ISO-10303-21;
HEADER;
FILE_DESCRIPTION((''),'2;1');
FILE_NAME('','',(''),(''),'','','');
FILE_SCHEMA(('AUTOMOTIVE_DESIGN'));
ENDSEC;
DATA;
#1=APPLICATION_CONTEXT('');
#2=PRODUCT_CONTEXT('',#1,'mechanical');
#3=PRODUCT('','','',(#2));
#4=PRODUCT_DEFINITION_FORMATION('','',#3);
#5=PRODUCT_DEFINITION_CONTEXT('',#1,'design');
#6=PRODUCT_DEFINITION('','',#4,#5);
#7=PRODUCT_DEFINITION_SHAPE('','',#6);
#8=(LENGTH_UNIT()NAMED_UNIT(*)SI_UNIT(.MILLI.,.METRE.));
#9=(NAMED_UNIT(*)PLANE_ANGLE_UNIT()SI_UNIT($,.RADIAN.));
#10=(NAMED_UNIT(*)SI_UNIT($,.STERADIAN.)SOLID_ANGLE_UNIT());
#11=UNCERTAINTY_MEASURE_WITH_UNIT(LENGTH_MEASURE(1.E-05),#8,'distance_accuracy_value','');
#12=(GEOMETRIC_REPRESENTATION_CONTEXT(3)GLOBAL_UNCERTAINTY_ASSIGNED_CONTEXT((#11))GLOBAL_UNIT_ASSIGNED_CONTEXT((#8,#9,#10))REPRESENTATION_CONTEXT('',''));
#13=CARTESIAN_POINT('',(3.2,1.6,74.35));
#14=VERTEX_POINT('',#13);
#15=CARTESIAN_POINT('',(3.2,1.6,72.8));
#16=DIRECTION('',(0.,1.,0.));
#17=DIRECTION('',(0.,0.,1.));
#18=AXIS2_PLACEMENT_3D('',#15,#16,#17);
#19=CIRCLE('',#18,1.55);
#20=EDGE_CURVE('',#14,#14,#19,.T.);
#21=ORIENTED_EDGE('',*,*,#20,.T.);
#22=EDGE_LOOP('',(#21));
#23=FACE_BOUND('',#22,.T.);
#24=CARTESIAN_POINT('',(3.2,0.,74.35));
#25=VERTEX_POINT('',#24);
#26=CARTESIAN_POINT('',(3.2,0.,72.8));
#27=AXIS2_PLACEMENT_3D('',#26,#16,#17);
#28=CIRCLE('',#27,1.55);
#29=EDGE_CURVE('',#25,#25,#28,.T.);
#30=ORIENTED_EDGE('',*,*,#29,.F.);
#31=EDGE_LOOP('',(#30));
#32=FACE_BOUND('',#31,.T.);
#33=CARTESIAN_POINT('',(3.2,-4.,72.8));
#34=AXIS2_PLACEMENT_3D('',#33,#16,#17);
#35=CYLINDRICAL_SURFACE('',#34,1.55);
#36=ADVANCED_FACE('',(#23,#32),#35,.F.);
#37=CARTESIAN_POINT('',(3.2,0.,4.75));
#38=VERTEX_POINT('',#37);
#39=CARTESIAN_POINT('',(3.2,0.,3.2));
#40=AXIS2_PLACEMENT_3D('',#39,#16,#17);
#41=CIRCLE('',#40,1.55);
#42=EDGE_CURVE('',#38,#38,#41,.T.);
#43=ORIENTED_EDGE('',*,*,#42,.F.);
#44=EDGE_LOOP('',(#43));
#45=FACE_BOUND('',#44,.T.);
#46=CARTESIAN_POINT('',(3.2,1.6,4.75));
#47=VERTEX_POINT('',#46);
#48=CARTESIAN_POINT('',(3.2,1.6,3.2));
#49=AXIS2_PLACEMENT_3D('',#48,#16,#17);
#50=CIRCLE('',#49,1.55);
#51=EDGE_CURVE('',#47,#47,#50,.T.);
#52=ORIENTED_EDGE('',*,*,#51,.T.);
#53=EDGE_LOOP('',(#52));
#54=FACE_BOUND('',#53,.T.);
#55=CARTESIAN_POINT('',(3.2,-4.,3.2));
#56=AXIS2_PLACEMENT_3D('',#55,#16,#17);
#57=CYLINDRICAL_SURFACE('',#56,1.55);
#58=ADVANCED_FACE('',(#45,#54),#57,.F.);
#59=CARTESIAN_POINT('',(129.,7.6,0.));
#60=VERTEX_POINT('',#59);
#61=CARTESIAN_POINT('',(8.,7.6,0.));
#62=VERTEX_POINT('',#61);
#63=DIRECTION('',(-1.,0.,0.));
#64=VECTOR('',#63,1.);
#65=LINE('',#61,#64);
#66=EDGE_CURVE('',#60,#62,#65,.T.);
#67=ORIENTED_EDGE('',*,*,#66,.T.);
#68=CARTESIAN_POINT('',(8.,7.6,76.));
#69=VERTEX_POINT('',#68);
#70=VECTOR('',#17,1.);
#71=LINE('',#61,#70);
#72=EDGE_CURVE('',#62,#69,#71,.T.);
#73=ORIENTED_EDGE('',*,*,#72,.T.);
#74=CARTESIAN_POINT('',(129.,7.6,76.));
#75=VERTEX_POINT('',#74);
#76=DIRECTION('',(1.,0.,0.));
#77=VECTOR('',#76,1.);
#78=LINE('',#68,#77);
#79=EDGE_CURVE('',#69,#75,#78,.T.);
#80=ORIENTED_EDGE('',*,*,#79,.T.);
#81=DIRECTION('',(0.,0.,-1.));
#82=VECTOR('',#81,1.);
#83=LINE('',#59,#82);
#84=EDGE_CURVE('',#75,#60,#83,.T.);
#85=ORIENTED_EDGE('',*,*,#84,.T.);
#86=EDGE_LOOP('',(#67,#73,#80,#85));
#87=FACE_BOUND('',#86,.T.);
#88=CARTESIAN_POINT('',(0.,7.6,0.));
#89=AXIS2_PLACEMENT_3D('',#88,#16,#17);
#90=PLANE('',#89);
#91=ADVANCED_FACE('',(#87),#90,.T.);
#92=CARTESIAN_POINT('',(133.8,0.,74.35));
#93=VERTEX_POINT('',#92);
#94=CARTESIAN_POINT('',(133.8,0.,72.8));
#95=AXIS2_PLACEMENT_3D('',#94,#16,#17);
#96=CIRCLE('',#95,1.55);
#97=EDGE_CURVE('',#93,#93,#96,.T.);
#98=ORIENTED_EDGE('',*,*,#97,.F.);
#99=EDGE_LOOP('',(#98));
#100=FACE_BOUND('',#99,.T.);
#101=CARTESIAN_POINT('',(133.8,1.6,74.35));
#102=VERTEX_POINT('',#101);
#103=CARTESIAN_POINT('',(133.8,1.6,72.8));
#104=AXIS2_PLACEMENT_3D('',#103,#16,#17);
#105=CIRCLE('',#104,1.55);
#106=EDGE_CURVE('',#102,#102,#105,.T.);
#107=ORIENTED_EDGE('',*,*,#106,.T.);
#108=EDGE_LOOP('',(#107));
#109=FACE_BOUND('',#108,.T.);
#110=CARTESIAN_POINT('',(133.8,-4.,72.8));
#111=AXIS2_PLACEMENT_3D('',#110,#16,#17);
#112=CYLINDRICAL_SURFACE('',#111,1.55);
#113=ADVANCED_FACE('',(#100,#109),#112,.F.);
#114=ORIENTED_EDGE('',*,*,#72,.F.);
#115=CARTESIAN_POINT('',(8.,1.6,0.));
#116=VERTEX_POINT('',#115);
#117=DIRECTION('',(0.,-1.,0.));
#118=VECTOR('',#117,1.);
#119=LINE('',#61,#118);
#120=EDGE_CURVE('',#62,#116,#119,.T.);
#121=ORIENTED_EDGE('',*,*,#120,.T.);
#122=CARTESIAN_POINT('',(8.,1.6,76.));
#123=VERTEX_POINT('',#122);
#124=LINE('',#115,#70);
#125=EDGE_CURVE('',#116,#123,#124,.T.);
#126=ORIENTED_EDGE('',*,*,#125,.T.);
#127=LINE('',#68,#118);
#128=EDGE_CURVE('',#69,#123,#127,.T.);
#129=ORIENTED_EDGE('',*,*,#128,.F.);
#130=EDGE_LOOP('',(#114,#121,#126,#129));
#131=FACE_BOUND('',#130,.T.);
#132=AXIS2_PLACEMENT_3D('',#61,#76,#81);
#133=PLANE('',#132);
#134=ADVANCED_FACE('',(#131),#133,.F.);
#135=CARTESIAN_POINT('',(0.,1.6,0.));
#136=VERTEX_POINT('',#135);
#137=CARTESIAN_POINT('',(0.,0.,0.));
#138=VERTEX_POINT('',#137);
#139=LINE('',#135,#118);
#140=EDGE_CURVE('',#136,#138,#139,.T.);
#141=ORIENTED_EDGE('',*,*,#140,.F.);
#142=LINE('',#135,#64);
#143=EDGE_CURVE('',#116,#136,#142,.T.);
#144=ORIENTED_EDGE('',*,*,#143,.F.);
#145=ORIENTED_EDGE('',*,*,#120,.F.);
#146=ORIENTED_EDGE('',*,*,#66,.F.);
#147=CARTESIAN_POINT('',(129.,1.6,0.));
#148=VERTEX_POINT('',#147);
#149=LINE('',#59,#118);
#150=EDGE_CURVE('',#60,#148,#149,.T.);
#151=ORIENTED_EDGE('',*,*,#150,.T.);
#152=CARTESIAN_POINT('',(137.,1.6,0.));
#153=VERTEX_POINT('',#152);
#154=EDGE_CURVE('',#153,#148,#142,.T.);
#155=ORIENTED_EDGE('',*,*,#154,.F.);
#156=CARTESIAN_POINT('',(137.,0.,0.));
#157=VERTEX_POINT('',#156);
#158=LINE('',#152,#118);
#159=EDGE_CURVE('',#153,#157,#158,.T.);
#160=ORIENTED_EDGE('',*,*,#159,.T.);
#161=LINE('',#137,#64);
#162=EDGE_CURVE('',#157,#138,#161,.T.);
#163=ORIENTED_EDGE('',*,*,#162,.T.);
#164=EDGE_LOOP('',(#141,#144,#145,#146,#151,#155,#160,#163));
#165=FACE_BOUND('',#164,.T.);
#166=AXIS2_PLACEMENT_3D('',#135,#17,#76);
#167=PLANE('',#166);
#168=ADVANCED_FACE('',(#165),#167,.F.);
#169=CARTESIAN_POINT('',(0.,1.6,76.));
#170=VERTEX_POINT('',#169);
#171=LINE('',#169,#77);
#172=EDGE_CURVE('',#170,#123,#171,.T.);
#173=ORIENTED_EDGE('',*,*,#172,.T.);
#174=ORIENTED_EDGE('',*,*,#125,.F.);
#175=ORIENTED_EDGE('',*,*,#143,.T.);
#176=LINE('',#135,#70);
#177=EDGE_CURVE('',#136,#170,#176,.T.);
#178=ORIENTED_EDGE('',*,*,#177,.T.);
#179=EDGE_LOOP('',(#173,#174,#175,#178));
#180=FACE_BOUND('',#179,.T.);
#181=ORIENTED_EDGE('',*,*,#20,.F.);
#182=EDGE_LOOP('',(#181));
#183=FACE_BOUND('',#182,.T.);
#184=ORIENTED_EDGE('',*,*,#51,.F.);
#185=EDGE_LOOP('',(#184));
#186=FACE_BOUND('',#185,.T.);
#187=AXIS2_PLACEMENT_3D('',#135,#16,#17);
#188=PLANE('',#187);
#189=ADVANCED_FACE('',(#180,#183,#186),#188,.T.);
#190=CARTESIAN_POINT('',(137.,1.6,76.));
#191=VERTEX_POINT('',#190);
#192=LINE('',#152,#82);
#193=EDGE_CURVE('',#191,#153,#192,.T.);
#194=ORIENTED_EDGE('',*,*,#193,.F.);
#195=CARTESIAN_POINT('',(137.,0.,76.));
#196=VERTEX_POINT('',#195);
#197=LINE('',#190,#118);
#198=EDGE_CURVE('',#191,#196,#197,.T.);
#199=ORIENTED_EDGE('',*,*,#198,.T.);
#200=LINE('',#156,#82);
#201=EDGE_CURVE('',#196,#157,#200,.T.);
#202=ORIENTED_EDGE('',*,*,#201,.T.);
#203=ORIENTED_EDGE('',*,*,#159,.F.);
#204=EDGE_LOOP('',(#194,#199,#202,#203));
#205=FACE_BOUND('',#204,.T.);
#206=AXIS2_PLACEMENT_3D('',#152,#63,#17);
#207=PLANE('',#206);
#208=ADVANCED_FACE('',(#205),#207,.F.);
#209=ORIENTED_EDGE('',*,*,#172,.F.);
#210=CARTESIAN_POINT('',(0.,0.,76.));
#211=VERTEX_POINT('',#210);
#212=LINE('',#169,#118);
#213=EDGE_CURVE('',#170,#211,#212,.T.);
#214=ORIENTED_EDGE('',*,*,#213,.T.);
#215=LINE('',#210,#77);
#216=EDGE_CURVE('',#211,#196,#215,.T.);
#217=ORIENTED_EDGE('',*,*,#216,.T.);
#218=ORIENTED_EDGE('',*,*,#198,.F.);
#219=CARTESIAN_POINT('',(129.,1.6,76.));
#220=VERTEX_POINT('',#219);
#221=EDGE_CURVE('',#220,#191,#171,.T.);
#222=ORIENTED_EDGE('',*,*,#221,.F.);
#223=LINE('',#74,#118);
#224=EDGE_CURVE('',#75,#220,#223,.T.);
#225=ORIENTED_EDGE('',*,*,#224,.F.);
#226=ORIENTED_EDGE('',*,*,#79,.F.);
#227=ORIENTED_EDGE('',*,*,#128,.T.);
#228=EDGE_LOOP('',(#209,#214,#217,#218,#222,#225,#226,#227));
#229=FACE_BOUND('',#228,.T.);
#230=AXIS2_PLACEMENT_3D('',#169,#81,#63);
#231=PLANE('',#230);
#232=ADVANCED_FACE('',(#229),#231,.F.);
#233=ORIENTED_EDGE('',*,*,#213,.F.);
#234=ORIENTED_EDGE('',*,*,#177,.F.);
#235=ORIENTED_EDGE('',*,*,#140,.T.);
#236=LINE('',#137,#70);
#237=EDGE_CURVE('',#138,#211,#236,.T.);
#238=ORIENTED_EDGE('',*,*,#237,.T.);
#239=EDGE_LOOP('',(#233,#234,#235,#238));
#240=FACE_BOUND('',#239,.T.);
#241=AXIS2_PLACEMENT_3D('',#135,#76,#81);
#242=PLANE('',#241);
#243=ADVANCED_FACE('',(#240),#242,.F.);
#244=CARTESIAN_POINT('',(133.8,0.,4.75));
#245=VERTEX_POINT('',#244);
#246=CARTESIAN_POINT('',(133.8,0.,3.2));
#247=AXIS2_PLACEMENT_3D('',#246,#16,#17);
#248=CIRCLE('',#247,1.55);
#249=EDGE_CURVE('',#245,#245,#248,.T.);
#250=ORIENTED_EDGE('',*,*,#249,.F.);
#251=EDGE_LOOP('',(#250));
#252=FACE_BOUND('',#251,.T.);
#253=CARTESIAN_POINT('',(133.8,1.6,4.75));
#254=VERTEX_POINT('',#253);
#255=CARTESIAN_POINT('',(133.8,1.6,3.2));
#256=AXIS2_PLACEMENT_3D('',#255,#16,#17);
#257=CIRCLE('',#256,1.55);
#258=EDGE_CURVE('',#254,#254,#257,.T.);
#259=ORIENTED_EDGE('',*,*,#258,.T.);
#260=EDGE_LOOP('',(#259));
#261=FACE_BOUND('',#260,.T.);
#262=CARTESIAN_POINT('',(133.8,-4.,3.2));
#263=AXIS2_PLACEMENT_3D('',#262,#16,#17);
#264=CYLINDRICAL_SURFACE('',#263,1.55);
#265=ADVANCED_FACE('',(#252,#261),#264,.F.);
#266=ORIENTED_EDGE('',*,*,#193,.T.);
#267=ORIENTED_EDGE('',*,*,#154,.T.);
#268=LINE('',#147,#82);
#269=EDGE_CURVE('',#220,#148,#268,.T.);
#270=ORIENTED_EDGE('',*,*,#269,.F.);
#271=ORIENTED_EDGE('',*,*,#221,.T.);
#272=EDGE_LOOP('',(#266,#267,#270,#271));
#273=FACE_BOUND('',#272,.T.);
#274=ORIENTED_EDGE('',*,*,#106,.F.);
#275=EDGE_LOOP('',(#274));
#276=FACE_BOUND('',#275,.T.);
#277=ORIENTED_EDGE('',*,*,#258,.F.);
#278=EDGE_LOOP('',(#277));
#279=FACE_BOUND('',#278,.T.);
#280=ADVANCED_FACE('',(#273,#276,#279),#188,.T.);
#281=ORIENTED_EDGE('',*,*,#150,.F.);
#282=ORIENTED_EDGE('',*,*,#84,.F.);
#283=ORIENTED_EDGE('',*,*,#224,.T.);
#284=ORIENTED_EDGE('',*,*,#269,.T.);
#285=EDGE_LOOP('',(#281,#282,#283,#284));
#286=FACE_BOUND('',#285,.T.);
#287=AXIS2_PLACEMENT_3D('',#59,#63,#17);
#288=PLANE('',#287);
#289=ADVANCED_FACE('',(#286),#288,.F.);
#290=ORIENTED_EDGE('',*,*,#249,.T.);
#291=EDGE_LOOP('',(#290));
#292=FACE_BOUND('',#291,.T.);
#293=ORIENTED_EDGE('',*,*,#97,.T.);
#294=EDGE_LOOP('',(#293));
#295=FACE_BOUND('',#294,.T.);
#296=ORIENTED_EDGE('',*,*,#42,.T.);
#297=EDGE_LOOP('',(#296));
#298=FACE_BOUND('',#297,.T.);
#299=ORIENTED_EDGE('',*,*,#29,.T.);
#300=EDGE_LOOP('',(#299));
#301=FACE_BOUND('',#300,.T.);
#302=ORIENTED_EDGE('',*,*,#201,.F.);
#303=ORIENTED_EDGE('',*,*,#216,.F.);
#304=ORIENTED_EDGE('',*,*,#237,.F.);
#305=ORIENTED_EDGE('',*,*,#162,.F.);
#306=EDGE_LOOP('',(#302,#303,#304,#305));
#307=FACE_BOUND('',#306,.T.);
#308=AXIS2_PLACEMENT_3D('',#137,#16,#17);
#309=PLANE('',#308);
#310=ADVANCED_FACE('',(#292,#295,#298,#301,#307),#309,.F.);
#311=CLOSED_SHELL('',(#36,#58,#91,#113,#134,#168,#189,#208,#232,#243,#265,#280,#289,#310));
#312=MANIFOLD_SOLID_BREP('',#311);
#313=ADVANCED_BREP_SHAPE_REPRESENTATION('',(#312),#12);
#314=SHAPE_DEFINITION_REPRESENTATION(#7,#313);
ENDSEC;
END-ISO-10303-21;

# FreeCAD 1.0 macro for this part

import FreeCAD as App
import Part
import Sketcher
Q = App.Units.Quantity


def add_polygon(sketch, points):
    """Adds a closed chain of lines whose ends are joined by coincident constraints."""
    first, n = sketch.GeometryCount, len(points)
    for a, b in zip(points, points[1:] + points[:1]):
        sketch.addGeometry(Part.LineSegment(App.Vector(*a, 0), App.Vector(*b, 0)), False)
    for i in range(n):
        sketch.addConstraint(Sketcher.Constraint("Coincident", first + i, 2, first + (i + 1) % n, 1))

doc = App.newDocument("Part")
body = doc.addObject("PartDesign::Body", "Body")

# Sketch on XZ plane
sketch1 = doc.addObject("Sketcher::SketchObject", "Sketch")
body.addObject(sketch1)
sketch1.AttachmentSupport = (doc.XZ_Plane, [""])
sketch1.MapMode = "FlatFace"
add_polygon(sketch1, [(0, 0), (0, 76), (137, 76), (137, 0)])  # lines 0-3
sketch1.addConstraint(Sketcher.Constraint("Vertical", 0))
sketch1.addConstraint(Sketcher.Constraint("Horizontal", 1))
sketch1.addConstraint(Sketcher.Constraint("Vertical", 2))
sketch1.addConstraint(Sketcher.Constraint("Horizontal", 3))
sketch1.addConstraint(Sketcher.Constraint("Coincident", 3, 2, -1, 1))
sketch1.addConstraint(Sketcher.Constraint("DistanceX", 1, 1, 1, 2, Q("137 mm")))
sketch1.addConstraint(Sketcher.Constraint("DistanceY", 0, 1, 0, 2, Q("76 mm")))
pad1 = doc.addObject("PartDesign::Pad", "Pad")
body.addObject(pad1)
pad1.Profile = sketch1
pad1.Length = 1.6
pad1.Reversed = True

# Sketch on XZ plane
sketch2 = doc.addObject("Sketcher::SketchObject", "Sketch001")
body.addObject(sketch2)
sketch2.AttachmentSupport = (doc.XZ_Plane, [""])
sketch2.MapMode = "FlatFace"
sketch2.AttachmentOffset = App.Placement(App.Vector(0, 0, -1.6), App.Rotation())
add_polygon(sketch2, [(8, 0), (8, 76), (129, 76), (129, 0)])  # lines 0-3
sketch2.addConstraint(Sketcher.Constraint("Vertical", 0))
sketch2.addConstraint(Sketcher.Constraint("Horizontal", 1))
sketch2.addConstraint(Sketcher.Constraint("Vertical", 2))
sketch2.addConstraint(Sketcher.Constraint("Horizontal", 3))
sketch2.addConstraint(Sketcher.Constraint("PointOnObject", 2, 2, -1))
sketch2.addConstraint(Sketcher.Constraint("DistanceX", 1, 1, 1, 2, Q("121 mm")))
sketch2.addConstraint(Sketcher.Constraint("DistanceY", 0, 1, 0, 2, Q("76 mm")))
sketch2.addConstraint(Sketcher.Constraint("DistanceX", -1, 1, 0, 2, Q("8 mm")))
pad2 = doc.addObject("PartDesign::Pad", "Pad001")
body.addObject(pad2)
pad2.Profile = sketch2
pad2.Length = 6
pad2.Reversed = True

# Sketch on XZ plane
sketch3 = doc.addObject("Sketcher::SketchObject", "Sketch002")
body.addObject(sketch3)
sketch3.AttachmentSupport = (doc.XZ_Plane, [""])
sketch3.MapMode = "FlatFace"
sketch3.AttachmentOffset = App.Placement(App.Vector(0, 0, -1.6), App.Rotation())
sketch3.addGeometry(Part.Circle(App.Vector(3.2, 3.2, 0), App.Vector(0, 0, 1), 1.55), False)
sketch3.addGeometry(Part.Circle(App.Vector(3.2, 72.8, 0), App.Vector(0, 0, 1), 1.55), False)
sketch3.addGeometry(Part.Circle(App.Vector(133.8, 3.2, 0), App.Vector(0, 0, 1), 1.55), False)
sketch3.addGeometry(Part.Circle(App.Vector(133.8, 72.8, 0), App.Vector(0, 0, 1), 1.55), False)
sketch3.addConstraint(Sketcher.Constraint("Equal", 0, 1))
sketch3.addConstraint(Sketcher.Constraint("Equal", 1, 2))
sketch3.addConstraint(Sketcher.Constraint("Equal", 2, 3))
sketch3.addConstraint(Sketcher.Constraint("Horizontal", 0, 3, 2, 3))
sketch3.addConstraint(Sketcher.Constraint("Horizontal", 1, 3, 3, 3))
sketch3.addConstraint(Sketcher.Constraint("Vertical", 0, 3, 1, 3))
sketch3.addConstraint(Sketcher.Constraint("Vertical", 2, 3, 3, 3))
sketch3.addConstraint(Sketcher.Constraint("Diameter", 0, Q("3.1 mm")))
sketch3.addConstraint(Sketcher.Constraint("DistanceX", -1, 1, 0, 3, Q("3.2 mm")))
sketch3.addConstraint(Sketcher.Constraint("DistanceY", -1, 1, 0, 3, Q("3.2 mm")))
sketch3.addConstraint(Sketcher.Constraint("DistanceY", -1, 1, 1, 3, Q("72.8 mm")))
sketch3.addConstraint(Sketcher.Constraint("DistanceX", -1, 1, 2, 3, Q("133.8 mm")))
pocket1 = doc.addObject("PartDesign::Pocket", "Pocket")
body.addObject(pocket1)
pocket1.Profile = sketch3
pocket1.Length = 5.6
pocket1.Reversed = True

doc.recompute()
